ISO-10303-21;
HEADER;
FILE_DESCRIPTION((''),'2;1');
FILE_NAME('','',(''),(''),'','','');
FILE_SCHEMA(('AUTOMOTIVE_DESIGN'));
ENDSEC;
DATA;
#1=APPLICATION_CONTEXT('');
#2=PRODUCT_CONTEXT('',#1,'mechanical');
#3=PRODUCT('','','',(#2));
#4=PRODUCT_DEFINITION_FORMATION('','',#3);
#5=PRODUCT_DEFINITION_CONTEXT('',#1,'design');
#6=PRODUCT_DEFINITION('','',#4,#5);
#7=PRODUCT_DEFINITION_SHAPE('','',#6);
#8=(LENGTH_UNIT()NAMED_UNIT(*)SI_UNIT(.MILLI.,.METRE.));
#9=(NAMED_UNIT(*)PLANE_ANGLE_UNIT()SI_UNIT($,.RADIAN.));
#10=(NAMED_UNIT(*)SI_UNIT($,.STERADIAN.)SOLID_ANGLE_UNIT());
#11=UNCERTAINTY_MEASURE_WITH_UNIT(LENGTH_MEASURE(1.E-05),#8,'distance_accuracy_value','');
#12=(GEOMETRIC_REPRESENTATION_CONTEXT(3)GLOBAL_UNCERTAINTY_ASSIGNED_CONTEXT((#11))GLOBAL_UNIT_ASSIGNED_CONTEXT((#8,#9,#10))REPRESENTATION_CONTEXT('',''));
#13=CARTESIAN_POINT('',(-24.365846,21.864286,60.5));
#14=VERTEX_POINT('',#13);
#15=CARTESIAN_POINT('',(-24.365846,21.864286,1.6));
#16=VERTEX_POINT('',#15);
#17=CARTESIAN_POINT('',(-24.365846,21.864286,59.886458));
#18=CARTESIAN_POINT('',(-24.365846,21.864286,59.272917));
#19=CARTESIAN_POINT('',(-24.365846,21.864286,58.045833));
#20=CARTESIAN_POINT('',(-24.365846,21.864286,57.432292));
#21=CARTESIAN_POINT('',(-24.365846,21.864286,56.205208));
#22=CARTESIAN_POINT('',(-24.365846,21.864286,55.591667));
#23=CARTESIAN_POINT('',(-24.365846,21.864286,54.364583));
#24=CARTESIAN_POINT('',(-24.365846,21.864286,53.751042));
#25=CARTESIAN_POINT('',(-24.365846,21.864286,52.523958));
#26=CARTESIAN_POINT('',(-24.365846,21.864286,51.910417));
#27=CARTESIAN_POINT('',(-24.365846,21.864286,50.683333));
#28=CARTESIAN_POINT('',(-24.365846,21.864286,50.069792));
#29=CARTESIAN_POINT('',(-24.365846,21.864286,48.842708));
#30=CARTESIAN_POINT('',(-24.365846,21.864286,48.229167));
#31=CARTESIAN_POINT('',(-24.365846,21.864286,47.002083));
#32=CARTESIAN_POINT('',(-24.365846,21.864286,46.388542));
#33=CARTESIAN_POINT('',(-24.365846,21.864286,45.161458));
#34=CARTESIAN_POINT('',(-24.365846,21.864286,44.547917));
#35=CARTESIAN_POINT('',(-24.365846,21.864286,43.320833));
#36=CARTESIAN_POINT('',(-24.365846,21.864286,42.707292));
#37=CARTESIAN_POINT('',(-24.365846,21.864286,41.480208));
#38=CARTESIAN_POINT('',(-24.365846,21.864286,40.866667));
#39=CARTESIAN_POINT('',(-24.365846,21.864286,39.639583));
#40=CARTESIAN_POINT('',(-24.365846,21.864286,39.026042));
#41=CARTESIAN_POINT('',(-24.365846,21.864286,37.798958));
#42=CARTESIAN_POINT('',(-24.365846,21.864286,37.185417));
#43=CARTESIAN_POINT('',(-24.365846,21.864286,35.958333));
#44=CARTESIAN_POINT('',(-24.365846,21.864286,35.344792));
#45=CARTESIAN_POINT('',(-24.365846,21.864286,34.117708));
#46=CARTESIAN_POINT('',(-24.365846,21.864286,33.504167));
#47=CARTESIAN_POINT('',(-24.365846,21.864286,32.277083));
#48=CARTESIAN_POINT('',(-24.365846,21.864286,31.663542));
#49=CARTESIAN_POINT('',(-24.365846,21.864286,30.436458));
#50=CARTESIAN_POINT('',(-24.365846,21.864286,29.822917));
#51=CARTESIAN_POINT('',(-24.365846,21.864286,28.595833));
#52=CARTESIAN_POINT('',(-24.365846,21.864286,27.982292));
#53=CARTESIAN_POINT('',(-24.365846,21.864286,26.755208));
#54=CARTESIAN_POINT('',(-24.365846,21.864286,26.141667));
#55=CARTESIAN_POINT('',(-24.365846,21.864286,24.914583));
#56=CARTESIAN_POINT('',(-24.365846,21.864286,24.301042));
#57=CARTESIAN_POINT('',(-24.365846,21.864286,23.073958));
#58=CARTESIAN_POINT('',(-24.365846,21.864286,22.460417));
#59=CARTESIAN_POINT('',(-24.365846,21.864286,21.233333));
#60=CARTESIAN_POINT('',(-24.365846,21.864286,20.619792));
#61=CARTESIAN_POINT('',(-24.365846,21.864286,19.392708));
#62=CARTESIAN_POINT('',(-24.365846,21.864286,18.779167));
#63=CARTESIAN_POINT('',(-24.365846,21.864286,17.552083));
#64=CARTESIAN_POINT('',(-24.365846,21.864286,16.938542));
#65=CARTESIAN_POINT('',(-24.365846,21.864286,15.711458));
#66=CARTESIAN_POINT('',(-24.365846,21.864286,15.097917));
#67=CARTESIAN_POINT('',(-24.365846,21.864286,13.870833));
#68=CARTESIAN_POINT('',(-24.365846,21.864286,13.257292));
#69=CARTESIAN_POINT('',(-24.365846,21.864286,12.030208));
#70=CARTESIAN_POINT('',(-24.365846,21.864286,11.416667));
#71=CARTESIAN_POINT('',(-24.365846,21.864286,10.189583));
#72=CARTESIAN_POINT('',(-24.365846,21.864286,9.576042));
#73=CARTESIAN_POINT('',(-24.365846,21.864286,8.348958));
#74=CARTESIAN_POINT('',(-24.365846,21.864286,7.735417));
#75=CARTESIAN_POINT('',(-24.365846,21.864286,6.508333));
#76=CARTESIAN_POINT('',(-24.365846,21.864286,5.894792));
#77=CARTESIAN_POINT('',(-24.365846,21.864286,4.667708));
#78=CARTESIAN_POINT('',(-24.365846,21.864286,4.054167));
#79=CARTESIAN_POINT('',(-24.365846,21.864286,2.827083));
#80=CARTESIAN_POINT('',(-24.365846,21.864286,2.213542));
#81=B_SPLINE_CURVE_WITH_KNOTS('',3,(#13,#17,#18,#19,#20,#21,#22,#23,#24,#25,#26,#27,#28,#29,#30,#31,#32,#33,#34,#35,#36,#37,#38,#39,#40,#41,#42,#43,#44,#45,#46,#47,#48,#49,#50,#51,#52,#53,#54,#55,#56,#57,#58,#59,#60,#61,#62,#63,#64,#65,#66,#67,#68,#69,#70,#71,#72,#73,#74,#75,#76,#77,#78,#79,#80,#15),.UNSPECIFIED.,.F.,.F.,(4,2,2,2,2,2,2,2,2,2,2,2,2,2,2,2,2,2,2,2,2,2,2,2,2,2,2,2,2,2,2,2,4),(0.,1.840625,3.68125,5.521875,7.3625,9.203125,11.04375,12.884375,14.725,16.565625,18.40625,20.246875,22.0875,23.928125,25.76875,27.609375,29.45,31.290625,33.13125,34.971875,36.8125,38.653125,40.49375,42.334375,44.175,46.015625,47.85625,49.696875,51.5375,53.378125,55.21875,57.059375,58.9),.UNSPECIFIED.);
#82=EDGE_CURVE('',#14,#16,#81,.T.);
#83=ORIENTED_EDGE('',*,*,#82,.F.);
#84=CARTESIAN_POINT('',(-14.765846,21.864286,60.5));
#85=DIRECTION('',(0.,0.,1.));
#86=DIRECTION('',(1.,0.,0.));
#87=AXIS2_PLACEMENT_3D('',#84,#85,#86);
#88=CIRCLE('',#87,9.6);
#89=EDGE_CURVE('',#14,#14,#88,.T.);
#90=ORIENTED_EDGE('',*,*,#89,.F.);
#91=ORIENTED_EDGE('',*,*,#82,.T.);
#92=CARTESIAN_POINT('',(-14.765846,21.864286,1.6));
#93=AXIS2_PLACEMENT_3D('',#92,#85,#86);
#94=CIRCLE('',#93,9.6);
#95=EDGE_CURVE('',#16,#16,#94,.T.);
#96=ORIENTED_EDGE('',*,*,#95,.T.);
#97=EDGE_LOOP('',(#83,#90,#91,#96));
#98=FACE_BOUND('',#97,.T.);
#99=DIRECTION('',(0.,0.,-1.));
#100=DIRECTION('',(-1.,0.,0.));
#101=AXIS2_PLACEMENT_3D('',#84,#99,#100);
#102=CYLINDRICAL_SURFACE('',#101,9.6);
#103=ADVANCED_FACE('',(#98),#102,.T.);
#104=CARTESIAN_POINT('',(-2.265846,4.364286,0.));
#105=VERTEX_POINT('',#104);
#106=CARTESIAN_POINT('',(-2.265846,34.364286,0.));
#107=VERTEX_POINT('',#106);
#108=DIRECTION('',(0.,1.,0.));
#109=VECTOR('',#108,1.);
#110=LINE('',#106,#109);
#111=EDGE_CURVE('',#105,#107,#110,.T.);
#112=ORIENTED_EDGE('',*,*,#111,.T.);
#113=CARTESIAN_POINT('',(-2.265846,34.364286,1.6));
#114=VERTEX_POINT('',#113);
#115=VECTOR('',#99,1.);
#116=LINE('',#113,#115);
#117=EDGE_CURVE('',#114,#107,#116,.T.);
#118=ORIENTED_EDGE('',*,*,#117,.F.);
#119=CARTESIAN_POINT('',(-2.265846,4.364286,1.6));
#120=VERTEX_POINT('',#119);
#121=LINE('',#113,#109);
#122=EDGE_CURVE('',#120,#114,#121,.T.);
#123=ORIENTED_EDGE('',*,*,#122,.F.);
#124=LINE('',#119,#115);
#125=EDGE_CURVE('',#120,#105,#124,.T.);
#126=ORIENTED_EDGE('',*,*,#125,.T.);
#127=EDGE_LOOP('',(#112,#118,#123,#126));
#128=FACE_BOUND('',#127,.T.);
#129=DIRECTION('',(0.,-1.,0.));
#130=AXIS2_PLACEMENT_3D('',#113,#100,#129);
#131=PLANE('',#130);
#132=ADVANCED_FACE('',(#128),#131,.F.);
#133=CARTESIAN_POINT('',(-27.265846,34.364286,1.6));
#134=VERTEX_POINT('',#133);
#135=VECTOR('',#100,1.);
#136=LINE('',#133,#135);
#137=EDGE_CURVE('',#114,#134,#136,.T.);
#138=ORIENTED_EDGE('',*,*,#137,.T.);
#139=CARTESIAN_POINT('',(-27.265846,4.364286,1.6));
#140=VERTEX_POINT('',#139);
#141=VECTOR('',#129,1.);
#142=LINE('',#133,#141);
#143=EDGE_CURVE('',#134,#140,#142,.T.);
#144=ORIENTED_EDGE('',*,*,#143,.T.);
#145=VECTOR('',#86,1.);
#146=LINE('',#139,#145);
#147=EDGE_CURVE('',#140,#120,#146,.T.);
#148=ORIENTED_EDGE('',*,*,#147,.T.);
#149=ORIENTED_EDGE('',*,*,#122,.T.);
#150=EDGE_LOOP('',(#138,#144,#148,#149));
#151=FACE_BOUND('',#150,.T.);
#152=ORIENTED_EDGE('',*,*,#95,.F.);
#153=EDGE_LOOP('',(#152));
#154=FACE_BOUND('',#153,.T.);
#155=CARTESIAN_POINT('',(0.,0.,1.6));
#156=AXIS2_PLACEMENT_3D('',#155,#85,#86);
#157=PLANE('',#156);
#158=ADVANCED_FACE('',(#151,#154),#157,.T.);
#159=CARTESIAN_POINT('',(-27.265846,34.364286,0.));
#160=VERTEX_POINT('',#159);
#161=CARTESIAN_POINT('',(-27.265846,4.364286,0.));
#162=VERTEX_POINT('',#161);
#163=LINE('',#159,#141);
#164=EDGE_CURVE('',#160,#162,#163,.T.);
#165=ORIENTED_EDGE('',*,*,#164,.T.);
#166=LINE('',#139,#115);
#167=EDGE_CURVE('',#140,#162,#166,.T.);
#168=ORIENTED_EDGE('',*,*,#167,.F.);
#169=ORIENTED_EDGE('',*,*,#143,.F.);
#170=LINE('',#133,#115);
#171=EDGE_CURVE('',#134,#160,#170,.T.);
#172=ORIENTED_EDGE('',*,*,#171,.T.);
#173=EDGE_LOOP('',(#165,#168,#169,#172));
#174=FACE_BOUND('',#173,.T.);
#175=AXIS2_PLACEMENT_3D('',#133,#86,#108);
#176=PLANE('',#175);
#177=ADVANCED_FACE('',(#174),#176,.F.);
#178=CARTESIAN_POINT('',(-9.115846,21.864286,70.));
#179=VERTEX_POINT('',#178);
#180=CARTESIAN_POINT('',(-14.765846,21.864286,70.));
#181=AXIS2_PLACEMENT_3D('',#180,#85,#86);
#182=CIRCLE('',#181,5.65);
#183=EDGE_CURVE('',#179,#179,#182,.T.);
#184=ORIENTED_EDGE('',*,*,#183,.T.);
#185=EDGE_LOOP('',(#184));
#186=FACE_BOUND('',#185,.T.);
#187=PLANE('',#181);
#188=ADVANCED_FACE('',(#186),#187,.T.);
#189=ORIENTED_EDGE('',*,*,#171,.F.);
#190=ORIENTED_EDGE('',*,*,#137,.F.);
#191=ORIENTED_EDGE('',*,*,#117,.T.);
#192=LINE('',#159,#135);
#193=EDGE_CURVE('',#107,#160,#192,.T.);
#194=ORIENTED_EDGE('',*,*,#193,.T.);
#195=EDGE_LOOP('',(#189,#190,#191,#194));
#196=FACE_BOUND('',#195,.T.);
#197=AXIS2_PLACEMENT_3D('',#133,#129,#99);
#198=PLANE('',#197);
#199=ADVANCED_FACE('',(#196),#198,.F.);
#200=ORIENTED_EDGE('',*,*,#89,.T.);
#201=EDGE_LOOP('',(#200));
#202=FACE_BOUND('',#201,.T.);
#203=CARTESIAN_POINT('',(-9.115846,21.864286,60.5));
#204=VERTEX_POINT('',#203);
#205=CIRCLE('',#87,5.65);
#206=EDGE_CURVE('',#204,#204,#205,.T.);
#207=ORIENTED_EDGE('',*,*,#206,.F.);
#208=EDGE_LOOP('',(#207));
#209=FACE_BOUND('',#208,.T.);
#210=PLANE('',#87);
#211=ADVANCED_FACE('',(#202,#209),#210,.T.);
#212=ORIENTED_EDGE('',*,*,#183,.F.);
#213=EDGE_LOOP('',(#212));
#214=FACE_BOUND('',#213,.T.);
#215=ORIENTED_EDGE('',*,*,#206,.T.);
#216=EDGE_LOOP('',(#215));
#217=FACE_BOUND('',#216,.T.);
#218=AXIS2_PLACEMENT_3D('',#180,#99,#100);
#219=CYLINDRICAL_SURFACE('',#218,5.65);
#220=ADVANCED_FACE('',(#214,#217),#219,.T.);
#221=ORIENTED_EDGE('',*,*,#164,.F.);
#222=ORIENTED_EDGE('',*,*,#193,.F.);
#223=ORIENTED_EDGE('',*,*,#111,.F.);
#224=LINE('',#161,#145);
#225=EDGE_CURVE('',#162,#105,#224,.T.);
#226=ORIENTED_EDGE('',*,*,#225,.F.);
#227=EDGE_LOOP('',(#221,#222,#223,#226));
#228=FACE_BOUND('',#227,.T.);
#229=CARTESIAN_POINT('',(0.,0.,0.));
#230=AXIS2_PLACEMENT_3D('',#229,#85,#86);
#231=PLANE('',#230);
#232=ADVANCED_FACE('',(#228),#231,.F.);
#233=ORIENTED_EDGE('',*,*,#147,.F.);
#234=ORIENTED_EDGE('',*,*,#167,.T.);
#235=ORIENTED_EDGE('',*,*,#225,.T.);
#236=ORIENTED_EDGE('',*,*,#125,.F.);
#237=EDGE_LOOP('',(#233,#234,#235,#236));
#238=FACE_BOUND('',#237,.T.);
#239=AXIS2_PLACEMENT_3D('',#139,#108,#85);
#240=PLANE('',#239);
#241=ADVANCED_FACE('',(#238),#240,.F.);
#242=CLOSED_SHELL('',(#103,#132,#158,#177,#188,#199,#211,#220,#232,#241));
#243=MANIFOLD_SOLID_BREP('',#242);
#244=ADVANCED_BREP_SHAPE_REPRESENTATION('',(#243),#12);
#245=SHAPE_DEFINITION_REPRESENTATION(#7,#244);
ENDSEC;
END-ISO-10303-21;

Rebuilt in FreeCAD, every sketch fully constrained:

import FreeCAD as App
import Part
import Sketcher

V = App.Vector
Q = App.Units.Quantity


def add_polygon(sketch, points):
    """Adds a closed chain of lines whose ends are joined by coincident constraints."""
    first, n = sketch.GeometryCount, len(points)
    for a, b in zip(points, points[1:] + points[:1]):
        sketch.addGeometry(Part.LineSegment(App.Vector(*a, 0), App.Vector(*b, 0)), False)
    for i in range(n):
        sketch.addConstraint(Sketcher.Constraint("Coincident", first + i, 2, first + (i + 1) % n, 1))

doc = App.newDocument("Part")
body = doc.addObject("PartDesign::Body", "Body")

sketch1 = body.newObject("Sketcher::SketchObject", "Sketch")
sketch1.AttachmentSupport = (doc.getObject("XY_Plane"), [""])
sketch1.MapMode = "FlatFace"
add_polygon(sketch1, [(-27, 34), (-27, 4), (-2, 4), (-2, 34)])
sketch1.addConstraint([
    Sketcher.Constraint("Vertical", 0),
    Sketcher.Constraint("Horizontal", 1),
    Sketcher.Constraint("Vertical", 2),
    Sketcher.Constraint("Horizontal", 3),
    Sketcher.Constraint("DistanceX", 1, 1, 1, 2, Q("25 mm")),
    Sketcher.Constraint("DistanceY", 0, 2, 0, 1, Q("30 mm")),
    Sketcher.Constraint("DistanceX", 0, 2, -1, 1, Q("27.265846 mm")),
    Sketcher.Constraint("DistanceY", -1, 1, 0, 2, Q("4.364286 mm")),
])
pad1 = body.newObject("PartDesign::Pad", "Pad")
pad1.Profile = sketch1
pad1.Length = 1.6

sketch2 = body.newObject("Sketcher::SketchObject", "Sketch001")
sketch2.AttachmentSupport = (doc.getObject("XY_Plane"), [""])
sketch2.MapMode = "FlatFace"
sketch2.AttachmentOffset = App.Placement(V(0, 0, 1.6), App.Rotation())
sketch2.addGeometry(Part.Circle(V(-15, 22, 0), V(0, 0, 1), 10), False)
sketch2.addConstraint([
    Sketcher.Constraint("Diameter", 0, Q("19.2 mm")),
    Sketcher.Constraint("DistanceX", 0, 3, -1, 1, Q("14.765846 mm")),
    Sketcher.Constraint("DistanceY", -1, 1, 0, 3, Q("21.864286 mm")),
])
pad2 = body.newObject("PartDesign::Pad", "Pad001")
pad2.Profile = sketch2
pad2.Length = 58.9

sketch3 = body.newObject("Sketcher::SketchObject", "Sketch002")
sketch3.AttachmentSupport = (doc.getObject("XY_Plane"), [""])
sketch3.MapMode = "FlatFace"
sketch3.AttachmentOffset = App.Placement(V(0, 0, 60.5), App.Rotation())
sketch3.addGeometry(Part.Circle(V(-15, 22, 0), V(0, 0, 1), 6), False)
sketch3.addConstraint([
    Sketcher.Constraint("Diameter", 0, Q("11.3 mm")),
    Sketcher.Constraint("DistanceX", 0, 3, -1, 1, Q("14.765846 mm")),
    Sketcher.Constraint("DistanceY", -1, 1, 0, 3, Q("21.864286 mm")),
])
pad3 = body.newObject("PartDesign::Pad", "Pad002")
pad3.Profile = sketch3
pad3.Length = 9.5

doc.recompute()
